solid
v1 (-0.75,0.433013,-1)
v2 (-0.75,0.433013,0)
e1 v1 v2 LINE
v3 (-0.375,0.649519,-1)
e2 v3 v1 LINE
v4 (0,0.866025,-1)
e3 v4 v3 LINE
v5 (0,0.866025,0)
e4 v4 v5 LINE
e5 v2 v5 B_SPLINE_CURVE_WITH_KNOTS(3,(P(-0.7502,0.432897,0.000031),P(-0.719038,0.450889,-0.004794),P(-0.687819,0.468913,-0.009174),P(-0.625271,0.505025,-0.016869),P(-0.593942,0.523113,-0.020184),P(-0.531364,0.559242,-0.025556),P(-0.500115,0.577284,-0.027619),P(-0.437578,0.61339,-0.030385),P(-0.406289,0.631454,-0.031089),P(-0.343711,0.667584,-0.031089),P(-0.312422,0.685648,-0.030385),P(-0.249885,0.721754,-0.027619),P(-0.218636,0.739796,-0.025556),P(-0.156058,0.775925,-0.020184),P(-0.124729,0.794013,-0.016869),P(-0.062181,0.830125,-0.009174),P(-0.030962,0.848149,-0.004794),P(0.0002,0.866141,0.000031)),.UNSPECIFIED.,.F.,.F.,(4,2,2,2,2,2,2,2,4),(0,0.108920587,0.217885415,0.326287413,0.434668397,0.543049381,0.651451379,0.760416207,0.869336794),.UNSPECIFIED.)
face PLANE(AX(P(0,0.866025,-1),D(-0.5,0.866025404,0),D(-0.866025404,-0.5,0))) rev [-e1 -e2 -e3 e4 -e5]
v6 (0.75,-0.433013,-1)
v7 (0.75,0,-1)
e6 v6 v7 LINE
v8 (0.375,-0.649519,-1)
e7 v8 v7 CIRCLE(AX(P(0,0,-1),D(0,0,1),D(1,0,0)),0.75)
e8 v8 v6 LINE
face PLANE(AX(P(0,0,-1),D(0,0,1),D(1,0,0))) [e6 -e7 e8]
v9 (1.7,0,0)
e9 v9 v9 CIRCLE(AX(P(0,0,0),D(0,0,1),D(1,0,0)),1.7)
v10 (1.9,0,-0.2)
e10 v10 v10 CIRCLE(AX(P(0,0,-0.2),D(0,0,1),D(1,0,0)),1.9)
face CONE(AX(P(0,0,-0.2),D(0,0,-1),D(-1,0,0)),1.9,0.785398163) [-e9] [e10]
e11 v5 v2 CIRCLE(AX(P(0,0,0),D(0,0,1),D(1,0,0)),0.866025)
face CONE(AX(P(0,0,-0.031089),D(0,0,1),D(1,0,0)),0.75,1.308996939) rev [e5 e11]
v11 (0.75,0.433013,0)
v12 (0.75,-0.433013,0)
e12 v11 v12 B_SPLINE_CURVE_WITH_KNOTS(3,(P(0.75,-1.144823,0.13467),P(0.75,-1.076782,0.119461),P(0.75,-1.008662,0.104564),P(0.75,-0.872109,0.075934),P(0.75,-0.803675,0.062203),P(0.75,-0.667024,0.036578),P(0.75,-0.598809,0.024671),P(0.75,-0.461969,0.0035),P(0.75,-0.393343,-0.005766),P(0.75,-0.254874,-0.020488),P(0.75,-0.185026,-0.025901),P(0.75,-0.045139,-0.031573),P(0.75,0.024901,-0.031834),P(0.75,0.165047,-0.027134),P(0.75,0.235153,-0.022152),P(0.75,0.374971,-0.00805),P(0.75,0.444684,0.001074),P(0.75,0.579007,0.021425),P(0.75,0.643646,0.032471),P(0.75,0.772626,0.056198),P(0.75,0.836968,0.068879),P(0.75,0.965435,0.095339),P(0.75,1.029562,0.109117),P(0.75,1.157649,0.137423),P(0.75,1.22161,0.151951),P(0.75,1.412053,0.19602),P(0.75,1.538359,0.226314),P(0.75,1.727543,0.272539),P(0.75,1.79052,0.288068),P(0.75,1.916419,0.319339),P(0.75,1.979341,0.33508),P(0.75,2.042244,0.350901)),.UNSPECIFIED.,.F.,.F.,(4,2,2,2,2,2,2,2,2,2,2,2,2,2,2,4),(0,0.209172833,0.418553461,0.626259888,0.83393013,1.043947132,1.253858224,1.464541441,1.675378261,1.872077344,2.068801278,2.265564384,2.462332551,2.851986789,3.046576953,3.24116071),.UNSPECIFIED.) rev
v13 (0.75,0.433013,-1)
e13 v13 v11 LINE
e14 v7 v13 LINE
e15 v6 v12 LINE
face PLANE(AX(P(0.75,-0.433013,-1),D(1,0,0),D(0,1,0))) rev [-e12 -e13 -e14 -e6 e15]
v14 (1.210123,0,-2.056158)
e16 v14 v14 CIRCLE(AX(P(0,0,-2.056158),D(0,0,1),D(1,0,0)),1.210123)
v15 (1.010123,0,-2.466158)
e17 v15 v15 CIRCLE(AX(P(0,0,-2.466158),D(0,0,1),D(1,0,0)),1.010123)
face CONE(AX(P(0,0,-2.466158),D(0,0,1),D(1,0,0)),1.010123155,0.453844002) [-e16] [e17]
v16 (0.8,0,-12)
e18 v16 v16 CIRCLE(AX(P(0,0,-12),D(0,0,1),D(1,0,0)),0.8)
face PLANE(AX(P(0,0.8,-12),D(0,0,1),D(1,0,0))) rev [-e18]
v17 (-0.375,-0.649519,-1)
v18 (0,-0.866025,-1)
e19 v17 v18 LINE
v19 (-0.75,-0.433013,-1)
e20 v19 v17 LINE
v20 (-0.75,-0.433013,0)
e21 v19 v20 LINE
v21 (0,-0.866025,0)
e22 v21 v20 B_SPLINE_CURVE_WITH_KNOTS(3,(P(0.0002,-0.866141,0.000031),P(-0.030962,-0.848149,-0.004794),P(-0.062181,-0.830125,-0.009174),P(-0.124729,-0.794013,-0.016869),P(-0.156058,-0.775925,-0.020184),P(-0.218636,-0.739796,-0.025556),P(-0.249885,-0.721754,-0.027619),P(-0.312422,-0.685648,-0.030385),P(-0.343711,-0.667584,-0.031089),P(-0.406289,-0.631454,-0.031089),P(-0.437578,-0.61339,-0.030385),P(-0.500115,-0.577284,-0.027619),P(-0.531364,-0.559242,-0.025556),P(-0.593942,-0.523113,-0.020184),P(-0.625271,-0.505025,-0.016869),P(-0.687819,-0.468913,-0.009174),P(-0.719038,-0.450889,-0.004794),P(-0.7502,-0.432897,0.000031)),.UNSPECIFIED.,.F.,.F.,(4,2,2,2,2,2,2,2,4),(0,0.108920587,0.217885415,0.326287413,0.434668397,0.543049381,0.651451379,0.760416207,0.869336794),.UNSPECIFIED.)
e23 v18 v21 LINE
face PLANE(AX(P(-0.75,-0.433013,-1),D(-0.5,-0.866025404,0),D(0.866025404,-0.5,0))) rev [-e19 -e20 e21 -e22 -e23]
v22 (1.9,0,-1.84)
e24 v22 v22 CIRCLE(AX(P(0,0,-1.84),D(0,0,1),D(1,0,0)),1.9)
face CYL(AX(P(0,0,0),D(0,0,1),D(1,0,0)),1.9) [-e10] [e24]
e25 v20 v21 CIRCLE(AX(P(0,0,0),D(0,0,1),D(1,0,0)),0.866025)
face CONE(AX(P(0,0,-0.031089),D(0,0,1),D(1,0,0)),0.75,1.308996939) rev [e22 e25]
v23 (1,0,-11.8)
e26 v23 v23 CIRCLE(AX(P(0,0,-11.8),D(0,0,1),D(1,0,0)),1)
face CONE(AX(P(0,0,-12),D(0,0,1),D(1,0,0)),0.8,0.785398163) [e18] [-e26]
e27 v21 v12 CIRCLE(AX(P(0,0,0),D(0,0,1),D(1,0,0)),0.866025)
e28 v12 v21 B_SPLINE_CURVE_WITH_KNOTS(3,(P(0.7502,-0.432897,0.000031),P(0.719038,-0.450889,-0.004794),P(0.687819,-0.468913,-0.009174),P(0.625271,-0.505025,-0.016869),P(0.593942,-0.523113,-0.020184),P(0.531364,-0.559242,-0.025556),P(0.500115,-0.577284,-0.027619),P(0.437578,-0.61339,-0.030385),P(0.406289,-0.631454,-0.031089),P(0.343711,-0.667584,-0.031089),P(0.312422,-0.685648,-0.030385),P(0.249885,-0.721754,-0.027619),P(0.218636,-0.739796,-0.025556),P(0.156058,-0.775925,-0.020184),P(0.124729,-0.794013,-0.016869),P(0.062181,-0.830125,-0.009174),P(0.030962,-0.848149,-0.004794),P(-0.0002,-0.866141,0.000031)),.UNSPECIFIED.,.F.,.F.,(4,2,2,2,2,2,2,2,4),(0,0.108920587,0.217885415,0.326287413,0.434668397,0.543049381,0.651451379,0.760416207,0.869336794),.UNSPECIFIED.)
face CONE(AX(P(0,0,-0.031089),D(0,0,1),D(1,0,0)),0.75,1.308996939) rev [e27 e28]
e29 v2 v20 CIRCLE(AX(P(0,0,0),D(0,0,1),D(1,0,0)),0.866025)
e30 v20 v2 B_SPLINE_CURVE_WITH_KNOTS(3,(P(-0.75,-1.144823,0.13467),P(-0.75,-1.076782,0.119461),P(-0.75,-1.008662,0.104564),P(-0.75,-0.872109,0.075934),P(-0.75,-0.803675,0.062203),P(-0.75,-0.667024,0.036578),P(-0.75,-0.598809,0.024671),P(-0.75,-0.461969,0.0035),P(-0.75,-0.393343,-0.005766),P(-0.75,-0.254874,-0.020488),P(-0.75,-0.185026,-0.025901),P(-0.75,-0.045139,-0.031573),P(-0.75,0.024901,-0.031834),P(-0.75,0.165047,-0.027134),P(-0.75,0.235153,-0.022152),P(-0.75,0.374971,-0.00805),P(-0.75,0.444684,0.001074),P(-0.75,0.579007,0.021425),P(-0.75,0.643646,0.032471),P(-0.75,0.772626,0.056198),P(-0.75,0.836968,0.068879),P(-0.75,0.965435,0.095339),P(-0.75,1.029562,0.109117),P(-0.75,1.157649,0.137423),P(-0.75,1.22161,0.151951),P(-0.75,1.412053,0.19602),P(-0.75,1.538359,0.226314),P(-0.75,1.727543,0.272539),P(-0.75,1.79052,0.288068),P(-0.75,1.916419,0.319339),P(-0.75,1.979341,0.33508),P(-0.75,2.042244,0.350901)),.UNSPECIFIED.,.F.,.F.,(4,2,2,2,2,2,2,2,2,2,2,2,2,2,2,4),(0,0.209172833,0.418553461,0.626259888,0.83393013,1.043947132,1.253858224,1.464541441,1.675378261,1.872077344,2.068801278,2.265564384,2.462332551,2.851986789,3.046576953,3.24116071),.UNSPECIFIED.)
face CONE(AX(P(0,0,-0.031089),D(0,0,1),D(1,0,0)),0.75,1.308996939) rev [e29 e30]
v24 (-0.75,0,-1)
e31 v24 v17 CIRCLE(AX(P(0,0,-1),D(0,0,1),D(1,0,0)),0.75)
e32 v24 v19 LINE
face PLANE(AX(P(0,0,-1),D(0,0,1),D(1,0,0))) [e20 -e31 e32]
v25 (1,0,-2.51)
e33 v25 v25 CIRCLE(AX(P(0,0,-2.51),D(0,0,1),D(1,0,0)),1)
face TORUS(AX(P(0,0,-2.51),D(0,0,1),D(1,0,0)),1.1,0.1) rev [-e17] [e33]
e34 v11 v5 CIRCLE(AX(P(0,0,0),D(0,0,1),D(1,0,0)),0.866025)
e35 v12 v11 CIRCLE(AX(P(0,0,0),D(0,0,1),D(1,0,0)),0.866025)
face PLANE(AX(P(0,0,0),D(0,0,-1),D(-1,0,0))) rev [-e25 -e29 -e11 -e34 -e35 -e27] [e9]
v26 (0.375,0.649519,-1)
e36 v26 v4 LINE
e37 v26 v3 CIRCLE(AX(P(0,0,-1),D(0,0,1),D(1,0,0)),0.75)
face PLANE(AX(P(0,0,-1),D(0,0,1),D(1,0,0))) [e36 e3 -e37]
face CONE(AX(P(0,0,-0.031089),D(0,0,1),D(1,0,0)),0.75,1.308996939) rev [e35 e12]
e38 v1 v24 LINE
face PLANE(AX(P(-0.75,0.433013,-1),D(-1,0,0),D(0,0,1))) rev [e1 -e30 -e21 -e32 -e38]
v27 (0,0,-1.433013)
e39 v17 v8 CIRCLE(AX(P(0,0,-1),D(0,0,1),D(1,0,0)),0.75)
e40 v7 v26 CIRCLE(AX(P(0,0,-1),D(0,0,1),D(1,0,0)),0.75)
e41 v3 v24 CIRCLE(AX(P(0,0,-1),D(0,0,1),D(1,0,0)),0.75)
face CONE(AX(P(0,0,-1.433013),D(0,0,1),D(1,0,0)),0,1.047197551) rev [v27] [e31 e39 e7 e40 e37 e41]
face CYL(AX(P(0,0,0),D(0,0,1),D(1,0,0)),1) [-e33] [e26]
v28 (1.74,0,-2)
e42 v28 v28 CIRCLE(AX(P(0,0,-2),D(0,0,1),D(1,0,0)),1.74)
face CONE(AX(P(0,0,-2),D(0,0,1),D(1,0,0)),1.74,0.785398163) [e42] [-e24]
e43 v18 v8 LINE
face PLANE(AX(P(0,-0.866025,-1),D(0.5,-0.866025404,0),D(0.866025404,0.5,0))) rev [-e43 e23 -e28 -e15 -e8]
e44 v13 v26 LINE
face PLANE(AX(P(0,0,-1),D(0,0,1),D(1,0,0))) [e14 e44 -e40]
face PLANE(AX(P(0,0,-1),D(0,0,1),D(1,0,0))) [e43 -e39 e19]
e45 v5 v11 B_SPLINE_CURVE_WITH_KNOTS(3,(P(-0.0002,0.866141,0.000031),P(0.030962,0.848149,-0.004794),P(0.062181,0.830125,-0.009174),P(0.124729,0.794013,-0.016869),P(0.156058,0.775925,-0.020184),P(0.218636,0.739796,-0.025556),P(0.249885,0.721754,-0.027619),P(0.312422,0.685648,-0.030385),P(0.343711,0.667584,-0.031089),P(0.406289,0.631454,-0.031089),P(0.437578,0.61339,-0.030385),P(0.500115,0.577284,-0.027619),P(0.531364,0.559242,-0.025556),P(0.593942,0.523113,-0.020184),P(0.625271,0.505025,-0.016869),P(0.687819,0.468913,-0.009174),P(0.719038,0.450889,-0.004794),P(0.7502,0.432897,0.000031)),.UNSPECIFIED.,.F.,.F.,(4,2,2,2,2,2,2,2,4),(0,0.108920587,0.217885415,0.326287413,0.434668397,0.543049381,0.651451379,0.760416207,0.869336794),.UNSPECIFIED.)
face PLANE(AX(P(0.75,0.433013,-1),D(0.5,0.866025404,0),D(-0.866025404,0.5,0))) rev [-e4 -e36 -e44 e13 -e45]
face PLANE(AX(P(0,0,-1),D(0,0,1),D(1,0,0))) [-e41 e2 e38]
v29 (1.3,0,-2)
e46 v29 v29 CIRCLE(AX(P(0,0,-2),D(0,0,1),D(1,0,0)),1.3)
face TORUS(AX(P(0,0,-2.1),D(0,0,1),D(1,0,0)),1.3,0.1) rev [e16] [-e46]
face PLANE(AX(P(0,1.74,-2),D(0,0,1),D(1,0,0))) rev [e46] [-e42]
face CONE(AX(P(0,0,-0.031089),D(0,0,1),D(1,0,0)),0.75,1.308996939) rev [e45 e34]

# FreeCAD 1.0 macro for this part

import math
import FreeCAD as App
import Part
import Sketcher
from FreeCAD import Vector
Q = App.Units.Quantity

doc = App.newDocument("Part")
params = doc.addObject("Spreadsheet::Sheet", "Params")
for row, (alias, value) in enumerate([
    ("sketch1_radius", "0.1 mm"),
    ("sketch1_height", "12 mm"),
    ("sketch1_width", "1.7 mm"),
    ("sketch1_width2", "0.8 mm"),
    ("sketch1_width3", "0.44 mm"),
    ("revolution_angle", "360 deg"),
    ("pocket1_length", "1 mm"),
    ("sketch3_width", "0.75 mm"),
    ("groove_angle", "360 deg"),
    ("groove2_angle", "360 deg"),
], start=1):
    params.set(f"A{row}", alias)
    params.set(f"B{row}", "=" + value)
    params.setAlias(f"B{row}", alias)

body = doc.addObject("PartDesign::Body", "Body")

sketch1 = body.newObject("Sketcher::SketchObject", "Sketch")
sketch1.AttachmentSupport = (doc.getObject("YZ_Plane"), [""])
sketch1.MapMode = "FlatFace"
sketch1.addGeometry(Part.LineSegment(Vector(1.7, 0, 0), Vector(0, 0, 0)), False)
sketch1.addGeometry(Part.LineSegment(Vector(0, 0, 0), Vector(0, -12, 0)), False)
sketch1.addGeometry(Part.LineSegment(Vector(0, -12, 0), Vector(0.8, -12, 0)), False)
sketch1.addGeometry(Part.LineSegment(Vector(0.8, -12, 0), Vector(1, -11.8, 0)), False)
sketch1.addGeometry(Part.LineSegment(Vector(1, -11.8, 0), Vector(1, -2.51, 0)), False)
sketch1.addGeometry(Part.ArcOfCircle(Part.Circle(Vector(1.1, -2.51, 0), Vector(0, 0, 1), 0.1), math.radians(154), math.radians(180)), False)
sketch1.addGeometry(Part.LineSegment(Vector(1.01, -2.466, 0), Vector(1.21, -2.056, 0)), False)
sketch1.addGeometry(Part.ArcOfCircle(Part.Circle(Vector(1.3, -2.1, 0), Vector(0, 0, 1), 0.1), math.radians(90), math.radians(154)), False)
sketch1.addGeometry(Part.LineSegment(Vector(1.3, -2, 0), Vector(1.74, -2, 0)), False)
sketch1.addGeometry(Part.LineSegment(Vector(1.74, -2, 0), Vector(1.9, -1.84, 0)), False)
sketch1.addGeometry(Part.LineSegment(Vector(1.9, -1.84, 0), Vector(1.9, -0.2, 0)), False)
sketch1.addGeometry(Part.LineSegment(Vector(1.9, -0.2, 0), Vector(1.7, 0, 0)), False)
sketch1.addConstraint(Sketcher.Constraint("Coincident", 0, 2, 1, 1))
sketch1.addConstraint(Sketcher.Constraint("Coincident", 1, 2, 2, 1))
sketch1.addConstraint(Sketcher.Constraint("Coincident", 2, 2, 3, 1))
sketch1.addConstraint(Sketcher.Constraint("Coincident", 3, 2, 4, 1))
sketch1.addConstraint(Sketcher.Constraint("Tangent", 4, 2, 5, 2))
sketch1.addConstraint(Sketcher.Constraint("Tangent", 5, 1, 6, 1))
sketch1.addConstraint(Sketcher.Constraint("Tangent", 6, 2, 7, 2))
sketch1.addConstraint(Sketcher.Constraint("Tangent", 7, 1, 8, 1))
sketch1.addConstraint(Sketcher.Constraint("Coincident", 8, 2, 9, 1))
sketch1.addConstraint(Sketcher.Constraint("Coincident", 9, 2, 10, 1))
sketch1.addConstraint(Sketcher.Constraint("Coincident", 10, 2, 11, 1))
sketch1.addConstraint(Sketcher.Constraint("Coincident", 11, 2, 0, 1))
sketch1.addConstraint(Sketcher.Constraint("Horizontal", 0))
sketch1.addConstraint(Sketcher.Constraint("Vertical", 1))
sketch1.addConstraint(Sketcher.Constraint("Horizontal", 2))
sketch1.addConstraint(Sketcher.Constraint("Vertical", 4))
sketch1.addConstraint(Sketcher.Constraint("Horizontal", 8))
sketch1.addConstraint(Sketcher.Constraint("Vertical", 10))
sketch1.addConstraint(Sketcher.Constraint("Coincident", 0, 2, -1, 1))
sketch1.addConstraint(Sketcher.Constraint("Equal", 5, 7))
sketch1.addConstraint(Sketcher.Constraint("Parallel", 3, 9))
sketch1.addConstraint(Sketcher.Constraint("Perpendicular", 9, 11))
sketch1.addConstraint(Sketcher.Constraint("Equal", 3, 11))
sketch1.addConstraint(Sketcher.Constraint("Radius", 5, Q("0.1 mm")))
sketch1.addConstraint(Sketcher.Constraint("DistanceY", 1, 2, 1, 1, Q("12 mm")))
sketch1.addConstraint(Sketcher.Constraint("Angle", 3, Q("45 deg")))
sketch1.addConstraint(Sketcher.Constraint("DistanceX", 0, 2, 0, 1, Q("1.7 mm")))
sketch1.addConstraint(Sketcher.Constraint("DistanceX", 2, 1, 2, 2, Q("0.8 mm")))
sketch1.addConstraint(Sketcher.Constraint("DistanceX", -1, 1, 3, 2, Q("1 mm")))
sketch1.addConstraint(Sketcher.Constraint("DistanceY", 7, 1, -1, 1, Q("2 mm")))
sketch1.addConstraint(Sketcher.Constraint("DistanceX", 8, 1, 8, 2, Q("0.44 mm")))
sketch1.addConstraint(Sketcher.Constraint("DistanceY", 4, 1, 4, 2, Q("9.29 mm")))
sketch1.addConstraint(Sketcher.Constraint("DistanceY", 10, 1, 10, 2, Q("1.64 mm")))
sketch1.setExpression("Constraints[23]", "Params.sketch1_radius")
sketch1.setExpression("Constraints[24]", "Params.sketch1_height")
sketch1.setExpression("Constraints[26]", "Params.sketch1_width")
sketch1.setExpression("Constraints[27]", "Params.sketch1_width2")
sketch1.setExpression("Constraints[30]", "Params.sketch1_width3")
revolution = body.newObject("PartDesign::Revolution", "Revolution")
revolution.Profile = sketch1
revolution.ReferenceAxis = (sketch1, ["V_Axis"])
revolution.setExpression("Angle", "Params.revolution_angle")

sketch2 = body.newObject("Sketcher::SketchObject", "Sketch001")
sketch2.AttachmentSupport = (doc.getObject("XY_Plane"), [""])
sketch2.MapMode = "FlatFace"
sketch2.addGeometry(Part.LineSegment(Vector(0, 0.9, 0), Vector(-0.8, 0.4, 0)), False)
sketch2.addGeometry(Part.LineSegment(Vector(-0.8, 0.4, 0), Vector(-0.8, -0.4, 0)), False)
sketch2.addGeometry(Part.LineSegment(Vector(-0.8, -0.4, 0), Vector(0, -0.9, 0)), False)
sketch2.addGeometry(Part.LineSegment(Vector(0, -0.9, 0), Vector(0.8, -0.4, 0)), False)
sketch2.addGeometry(Part.LineSegment(Vector(0.8, -0.4, 0), Vector(0.8, 0.4, 0)), False)
sketch2.addGeometry(Part.LineSegment(Vector(0.8, 0.4, 0), Vector(0, 0.9, 0)), False)
sketch2.addConstraint(Sketcher.Constraint("Coincident", 0, 2, 1, 1))
sketch2.addConstraint(Sketcher.Constraint("Coincident", 1, 2, 2, 1))
sketch2.addConstraint(Sketcher.Constraint("Coincident", 2, 2, 3, 1))
sketch2.addConstraint(Sketcher.Constraint("Coincident", 3, 2, 4, 1))
sketch2.addConstraint(Sketcher.Constraint("Coincident", 4, 2, 5, 1))
sketch2.addConstraint(Sketcher.Constraint("Coincident", 5, 2, 0, 1))
sketch2.addConstraint(Sketcher.Constraint("Vertical", 1))
sketch2.addConstraint(Sketcher.Constraint("Vertical", 4))
sketch2.addConstraint(Sketcher.Constraint("Symmetric", 0, 2, 3, 2, -1, 1))
sketch2.addConstraint(Sketcher.Constraint("Symmetric", 2, 2, 5, 2, -1, 1))
sketch2.addConstraint(Sketcher.Constraint("PointOnObject", 2, 2, -2))
sketch2.addConstraint(Sketcher.Constraint("Parallel", 2, 5))
sketch2.addConstraint(Sketcher.Constraint("Horizontal", 1, 2, 3, 2))
sketch2.addConstraint(Sketcher.Constraint("Angle", 0, Q("-150 deg")))
sketch2.addConstraint(Sketcher.Constraint("DistanceX", 1, 2, 3, 2, Q("1.5 mm")))
sketch2.addConstraint(Sketcher.Constraint("DistanceY", 1, 2, 1, 1, Q("0.866025 mm")))
pocket1 = body.newObject("PartDesign::Pocket", "Pocket")
pocket1.Profile = sketch2
pocket1.setExpression("Length", "Params.pocket1_length")

sketch3 = body.newObject("Sketcher::SketchObject", "Sketch002")
sketch3.AttachmentSupport = (doc.getObject("YZ_Plane"), [""])
sketch3.MapMode = "FlatFace"
sketch3.addGeometry(Part.LineSegment(Vector(0.75, -1, 0), Vector(0, -1, 0)), False)
sketch3.addGeometry(Part.LineSegment(Vector(0, -1, 0), Vector(0, -1.43, 0)), False)
sketch3.addGeometry(Part.LineSegment(Vector(0, -1.43, 0), Vector(0.75, -1, 0)), False)
sketch3.addConstraint(Sketcher.Constraint("Coincident", 0, 2, 1, 1))
sketch3.addConstraint(Sketcher.Constraint("Coincident", 1, 2, 2, 1))
sketch3.addConstraint(Sketcher.Constraint("Coincident", 2, 2, 0, 1))
sketch3.addConstraint(Sketcher.Constraint("Horizontal", 0))
sketch3.addConstraint(Sketcher.Constraint("Vertical", 1))
sketch3.addConstraint(Sketcher.Constraint("PointOnObject", 0, 2, -2))
sketch3.addConstraint(Sketcher.Constraint("Angle", 2, Q("30 deg")))
sketch3.addConstraint(Sketcher.Constraint("DistanceY", 0, 2, -1, 1, Q("1 mm")))
sketch3.addConstraint(Sketcher.Constraint("DistanceX", 0, 2, 0, 1, Q("0.75 mm")))
sketch3.setExpression("Constraints[8]", "Params.sketch3_width")
groove = body.newObject("PartDesign::Groove", "Groove")
groove.Profile = sketch3
groove.ReferenceAxis = (sketch3, ["V_Axis"])
groove.setExpression("Angle", "Params.groove_angle")

sketch4 = body.newObject("Sketcher::SketchObject", "Sketch003")
sketch4.AttachmentSupport = (doc.getObject("YZ_Plane"), [""])
sketch4.MapMode = "FlatFace"
sketch4.addGeometry(Part.LineSegment(Vector(0.866, 0, 0), Vector(0.75, 0, 0)), False)
sketch4.addGeometry(Part.LineSegment(Vector(0.75, 0, 0), Vector(0.75, -0.031, 0)), False)
sketch4.addGeometry(Part.LineSegment(Vector(0.75, -0.031, 0), Vector(0.866, 0, 0)), False)
sketch4.addConstraint(Sketcher.Constraint("Coincident", 0, 2, 1, 1))
sketch4.addConstraint(Sketcher.Constraint("Coincident", 1, 2, 2, 1))
sketch4.addConstraint(Sketcher.Constraint("Coincident", 2, 2, 0, 1))
sketch4.addConstraint(Sketcher.Constraint("Horizontal", 0))
sketch4.addConstraint(Sketcher.Constraint("Vertical", 1))
sketch4.addConstraint(Sketcher.Constraint("PointOnObject", 0, 2, -1))
sketch4.addConstraint(Sketcher.Constraint("Angle", 2, Q("15 deg")))
sketch4.addConstraint(Sketcher.Constraint("DistanceX", -1, 1, 0, 2, Q("0.75 mm")))
sketch4.addConstraint(Sketcher.Constraint("DistanceY", 1, 2, 1, 1, Q("0.031089 mm")))
groove2 = body.newObject("PartDesign::Groove", "Groove001")
groove2.Profile = sketch4
groove2.ReferenceAxis = (sketch4, ["V_Axis"])
groove2.setExpression("Angle", "Params.groove2_angle")

doc.recompute()
